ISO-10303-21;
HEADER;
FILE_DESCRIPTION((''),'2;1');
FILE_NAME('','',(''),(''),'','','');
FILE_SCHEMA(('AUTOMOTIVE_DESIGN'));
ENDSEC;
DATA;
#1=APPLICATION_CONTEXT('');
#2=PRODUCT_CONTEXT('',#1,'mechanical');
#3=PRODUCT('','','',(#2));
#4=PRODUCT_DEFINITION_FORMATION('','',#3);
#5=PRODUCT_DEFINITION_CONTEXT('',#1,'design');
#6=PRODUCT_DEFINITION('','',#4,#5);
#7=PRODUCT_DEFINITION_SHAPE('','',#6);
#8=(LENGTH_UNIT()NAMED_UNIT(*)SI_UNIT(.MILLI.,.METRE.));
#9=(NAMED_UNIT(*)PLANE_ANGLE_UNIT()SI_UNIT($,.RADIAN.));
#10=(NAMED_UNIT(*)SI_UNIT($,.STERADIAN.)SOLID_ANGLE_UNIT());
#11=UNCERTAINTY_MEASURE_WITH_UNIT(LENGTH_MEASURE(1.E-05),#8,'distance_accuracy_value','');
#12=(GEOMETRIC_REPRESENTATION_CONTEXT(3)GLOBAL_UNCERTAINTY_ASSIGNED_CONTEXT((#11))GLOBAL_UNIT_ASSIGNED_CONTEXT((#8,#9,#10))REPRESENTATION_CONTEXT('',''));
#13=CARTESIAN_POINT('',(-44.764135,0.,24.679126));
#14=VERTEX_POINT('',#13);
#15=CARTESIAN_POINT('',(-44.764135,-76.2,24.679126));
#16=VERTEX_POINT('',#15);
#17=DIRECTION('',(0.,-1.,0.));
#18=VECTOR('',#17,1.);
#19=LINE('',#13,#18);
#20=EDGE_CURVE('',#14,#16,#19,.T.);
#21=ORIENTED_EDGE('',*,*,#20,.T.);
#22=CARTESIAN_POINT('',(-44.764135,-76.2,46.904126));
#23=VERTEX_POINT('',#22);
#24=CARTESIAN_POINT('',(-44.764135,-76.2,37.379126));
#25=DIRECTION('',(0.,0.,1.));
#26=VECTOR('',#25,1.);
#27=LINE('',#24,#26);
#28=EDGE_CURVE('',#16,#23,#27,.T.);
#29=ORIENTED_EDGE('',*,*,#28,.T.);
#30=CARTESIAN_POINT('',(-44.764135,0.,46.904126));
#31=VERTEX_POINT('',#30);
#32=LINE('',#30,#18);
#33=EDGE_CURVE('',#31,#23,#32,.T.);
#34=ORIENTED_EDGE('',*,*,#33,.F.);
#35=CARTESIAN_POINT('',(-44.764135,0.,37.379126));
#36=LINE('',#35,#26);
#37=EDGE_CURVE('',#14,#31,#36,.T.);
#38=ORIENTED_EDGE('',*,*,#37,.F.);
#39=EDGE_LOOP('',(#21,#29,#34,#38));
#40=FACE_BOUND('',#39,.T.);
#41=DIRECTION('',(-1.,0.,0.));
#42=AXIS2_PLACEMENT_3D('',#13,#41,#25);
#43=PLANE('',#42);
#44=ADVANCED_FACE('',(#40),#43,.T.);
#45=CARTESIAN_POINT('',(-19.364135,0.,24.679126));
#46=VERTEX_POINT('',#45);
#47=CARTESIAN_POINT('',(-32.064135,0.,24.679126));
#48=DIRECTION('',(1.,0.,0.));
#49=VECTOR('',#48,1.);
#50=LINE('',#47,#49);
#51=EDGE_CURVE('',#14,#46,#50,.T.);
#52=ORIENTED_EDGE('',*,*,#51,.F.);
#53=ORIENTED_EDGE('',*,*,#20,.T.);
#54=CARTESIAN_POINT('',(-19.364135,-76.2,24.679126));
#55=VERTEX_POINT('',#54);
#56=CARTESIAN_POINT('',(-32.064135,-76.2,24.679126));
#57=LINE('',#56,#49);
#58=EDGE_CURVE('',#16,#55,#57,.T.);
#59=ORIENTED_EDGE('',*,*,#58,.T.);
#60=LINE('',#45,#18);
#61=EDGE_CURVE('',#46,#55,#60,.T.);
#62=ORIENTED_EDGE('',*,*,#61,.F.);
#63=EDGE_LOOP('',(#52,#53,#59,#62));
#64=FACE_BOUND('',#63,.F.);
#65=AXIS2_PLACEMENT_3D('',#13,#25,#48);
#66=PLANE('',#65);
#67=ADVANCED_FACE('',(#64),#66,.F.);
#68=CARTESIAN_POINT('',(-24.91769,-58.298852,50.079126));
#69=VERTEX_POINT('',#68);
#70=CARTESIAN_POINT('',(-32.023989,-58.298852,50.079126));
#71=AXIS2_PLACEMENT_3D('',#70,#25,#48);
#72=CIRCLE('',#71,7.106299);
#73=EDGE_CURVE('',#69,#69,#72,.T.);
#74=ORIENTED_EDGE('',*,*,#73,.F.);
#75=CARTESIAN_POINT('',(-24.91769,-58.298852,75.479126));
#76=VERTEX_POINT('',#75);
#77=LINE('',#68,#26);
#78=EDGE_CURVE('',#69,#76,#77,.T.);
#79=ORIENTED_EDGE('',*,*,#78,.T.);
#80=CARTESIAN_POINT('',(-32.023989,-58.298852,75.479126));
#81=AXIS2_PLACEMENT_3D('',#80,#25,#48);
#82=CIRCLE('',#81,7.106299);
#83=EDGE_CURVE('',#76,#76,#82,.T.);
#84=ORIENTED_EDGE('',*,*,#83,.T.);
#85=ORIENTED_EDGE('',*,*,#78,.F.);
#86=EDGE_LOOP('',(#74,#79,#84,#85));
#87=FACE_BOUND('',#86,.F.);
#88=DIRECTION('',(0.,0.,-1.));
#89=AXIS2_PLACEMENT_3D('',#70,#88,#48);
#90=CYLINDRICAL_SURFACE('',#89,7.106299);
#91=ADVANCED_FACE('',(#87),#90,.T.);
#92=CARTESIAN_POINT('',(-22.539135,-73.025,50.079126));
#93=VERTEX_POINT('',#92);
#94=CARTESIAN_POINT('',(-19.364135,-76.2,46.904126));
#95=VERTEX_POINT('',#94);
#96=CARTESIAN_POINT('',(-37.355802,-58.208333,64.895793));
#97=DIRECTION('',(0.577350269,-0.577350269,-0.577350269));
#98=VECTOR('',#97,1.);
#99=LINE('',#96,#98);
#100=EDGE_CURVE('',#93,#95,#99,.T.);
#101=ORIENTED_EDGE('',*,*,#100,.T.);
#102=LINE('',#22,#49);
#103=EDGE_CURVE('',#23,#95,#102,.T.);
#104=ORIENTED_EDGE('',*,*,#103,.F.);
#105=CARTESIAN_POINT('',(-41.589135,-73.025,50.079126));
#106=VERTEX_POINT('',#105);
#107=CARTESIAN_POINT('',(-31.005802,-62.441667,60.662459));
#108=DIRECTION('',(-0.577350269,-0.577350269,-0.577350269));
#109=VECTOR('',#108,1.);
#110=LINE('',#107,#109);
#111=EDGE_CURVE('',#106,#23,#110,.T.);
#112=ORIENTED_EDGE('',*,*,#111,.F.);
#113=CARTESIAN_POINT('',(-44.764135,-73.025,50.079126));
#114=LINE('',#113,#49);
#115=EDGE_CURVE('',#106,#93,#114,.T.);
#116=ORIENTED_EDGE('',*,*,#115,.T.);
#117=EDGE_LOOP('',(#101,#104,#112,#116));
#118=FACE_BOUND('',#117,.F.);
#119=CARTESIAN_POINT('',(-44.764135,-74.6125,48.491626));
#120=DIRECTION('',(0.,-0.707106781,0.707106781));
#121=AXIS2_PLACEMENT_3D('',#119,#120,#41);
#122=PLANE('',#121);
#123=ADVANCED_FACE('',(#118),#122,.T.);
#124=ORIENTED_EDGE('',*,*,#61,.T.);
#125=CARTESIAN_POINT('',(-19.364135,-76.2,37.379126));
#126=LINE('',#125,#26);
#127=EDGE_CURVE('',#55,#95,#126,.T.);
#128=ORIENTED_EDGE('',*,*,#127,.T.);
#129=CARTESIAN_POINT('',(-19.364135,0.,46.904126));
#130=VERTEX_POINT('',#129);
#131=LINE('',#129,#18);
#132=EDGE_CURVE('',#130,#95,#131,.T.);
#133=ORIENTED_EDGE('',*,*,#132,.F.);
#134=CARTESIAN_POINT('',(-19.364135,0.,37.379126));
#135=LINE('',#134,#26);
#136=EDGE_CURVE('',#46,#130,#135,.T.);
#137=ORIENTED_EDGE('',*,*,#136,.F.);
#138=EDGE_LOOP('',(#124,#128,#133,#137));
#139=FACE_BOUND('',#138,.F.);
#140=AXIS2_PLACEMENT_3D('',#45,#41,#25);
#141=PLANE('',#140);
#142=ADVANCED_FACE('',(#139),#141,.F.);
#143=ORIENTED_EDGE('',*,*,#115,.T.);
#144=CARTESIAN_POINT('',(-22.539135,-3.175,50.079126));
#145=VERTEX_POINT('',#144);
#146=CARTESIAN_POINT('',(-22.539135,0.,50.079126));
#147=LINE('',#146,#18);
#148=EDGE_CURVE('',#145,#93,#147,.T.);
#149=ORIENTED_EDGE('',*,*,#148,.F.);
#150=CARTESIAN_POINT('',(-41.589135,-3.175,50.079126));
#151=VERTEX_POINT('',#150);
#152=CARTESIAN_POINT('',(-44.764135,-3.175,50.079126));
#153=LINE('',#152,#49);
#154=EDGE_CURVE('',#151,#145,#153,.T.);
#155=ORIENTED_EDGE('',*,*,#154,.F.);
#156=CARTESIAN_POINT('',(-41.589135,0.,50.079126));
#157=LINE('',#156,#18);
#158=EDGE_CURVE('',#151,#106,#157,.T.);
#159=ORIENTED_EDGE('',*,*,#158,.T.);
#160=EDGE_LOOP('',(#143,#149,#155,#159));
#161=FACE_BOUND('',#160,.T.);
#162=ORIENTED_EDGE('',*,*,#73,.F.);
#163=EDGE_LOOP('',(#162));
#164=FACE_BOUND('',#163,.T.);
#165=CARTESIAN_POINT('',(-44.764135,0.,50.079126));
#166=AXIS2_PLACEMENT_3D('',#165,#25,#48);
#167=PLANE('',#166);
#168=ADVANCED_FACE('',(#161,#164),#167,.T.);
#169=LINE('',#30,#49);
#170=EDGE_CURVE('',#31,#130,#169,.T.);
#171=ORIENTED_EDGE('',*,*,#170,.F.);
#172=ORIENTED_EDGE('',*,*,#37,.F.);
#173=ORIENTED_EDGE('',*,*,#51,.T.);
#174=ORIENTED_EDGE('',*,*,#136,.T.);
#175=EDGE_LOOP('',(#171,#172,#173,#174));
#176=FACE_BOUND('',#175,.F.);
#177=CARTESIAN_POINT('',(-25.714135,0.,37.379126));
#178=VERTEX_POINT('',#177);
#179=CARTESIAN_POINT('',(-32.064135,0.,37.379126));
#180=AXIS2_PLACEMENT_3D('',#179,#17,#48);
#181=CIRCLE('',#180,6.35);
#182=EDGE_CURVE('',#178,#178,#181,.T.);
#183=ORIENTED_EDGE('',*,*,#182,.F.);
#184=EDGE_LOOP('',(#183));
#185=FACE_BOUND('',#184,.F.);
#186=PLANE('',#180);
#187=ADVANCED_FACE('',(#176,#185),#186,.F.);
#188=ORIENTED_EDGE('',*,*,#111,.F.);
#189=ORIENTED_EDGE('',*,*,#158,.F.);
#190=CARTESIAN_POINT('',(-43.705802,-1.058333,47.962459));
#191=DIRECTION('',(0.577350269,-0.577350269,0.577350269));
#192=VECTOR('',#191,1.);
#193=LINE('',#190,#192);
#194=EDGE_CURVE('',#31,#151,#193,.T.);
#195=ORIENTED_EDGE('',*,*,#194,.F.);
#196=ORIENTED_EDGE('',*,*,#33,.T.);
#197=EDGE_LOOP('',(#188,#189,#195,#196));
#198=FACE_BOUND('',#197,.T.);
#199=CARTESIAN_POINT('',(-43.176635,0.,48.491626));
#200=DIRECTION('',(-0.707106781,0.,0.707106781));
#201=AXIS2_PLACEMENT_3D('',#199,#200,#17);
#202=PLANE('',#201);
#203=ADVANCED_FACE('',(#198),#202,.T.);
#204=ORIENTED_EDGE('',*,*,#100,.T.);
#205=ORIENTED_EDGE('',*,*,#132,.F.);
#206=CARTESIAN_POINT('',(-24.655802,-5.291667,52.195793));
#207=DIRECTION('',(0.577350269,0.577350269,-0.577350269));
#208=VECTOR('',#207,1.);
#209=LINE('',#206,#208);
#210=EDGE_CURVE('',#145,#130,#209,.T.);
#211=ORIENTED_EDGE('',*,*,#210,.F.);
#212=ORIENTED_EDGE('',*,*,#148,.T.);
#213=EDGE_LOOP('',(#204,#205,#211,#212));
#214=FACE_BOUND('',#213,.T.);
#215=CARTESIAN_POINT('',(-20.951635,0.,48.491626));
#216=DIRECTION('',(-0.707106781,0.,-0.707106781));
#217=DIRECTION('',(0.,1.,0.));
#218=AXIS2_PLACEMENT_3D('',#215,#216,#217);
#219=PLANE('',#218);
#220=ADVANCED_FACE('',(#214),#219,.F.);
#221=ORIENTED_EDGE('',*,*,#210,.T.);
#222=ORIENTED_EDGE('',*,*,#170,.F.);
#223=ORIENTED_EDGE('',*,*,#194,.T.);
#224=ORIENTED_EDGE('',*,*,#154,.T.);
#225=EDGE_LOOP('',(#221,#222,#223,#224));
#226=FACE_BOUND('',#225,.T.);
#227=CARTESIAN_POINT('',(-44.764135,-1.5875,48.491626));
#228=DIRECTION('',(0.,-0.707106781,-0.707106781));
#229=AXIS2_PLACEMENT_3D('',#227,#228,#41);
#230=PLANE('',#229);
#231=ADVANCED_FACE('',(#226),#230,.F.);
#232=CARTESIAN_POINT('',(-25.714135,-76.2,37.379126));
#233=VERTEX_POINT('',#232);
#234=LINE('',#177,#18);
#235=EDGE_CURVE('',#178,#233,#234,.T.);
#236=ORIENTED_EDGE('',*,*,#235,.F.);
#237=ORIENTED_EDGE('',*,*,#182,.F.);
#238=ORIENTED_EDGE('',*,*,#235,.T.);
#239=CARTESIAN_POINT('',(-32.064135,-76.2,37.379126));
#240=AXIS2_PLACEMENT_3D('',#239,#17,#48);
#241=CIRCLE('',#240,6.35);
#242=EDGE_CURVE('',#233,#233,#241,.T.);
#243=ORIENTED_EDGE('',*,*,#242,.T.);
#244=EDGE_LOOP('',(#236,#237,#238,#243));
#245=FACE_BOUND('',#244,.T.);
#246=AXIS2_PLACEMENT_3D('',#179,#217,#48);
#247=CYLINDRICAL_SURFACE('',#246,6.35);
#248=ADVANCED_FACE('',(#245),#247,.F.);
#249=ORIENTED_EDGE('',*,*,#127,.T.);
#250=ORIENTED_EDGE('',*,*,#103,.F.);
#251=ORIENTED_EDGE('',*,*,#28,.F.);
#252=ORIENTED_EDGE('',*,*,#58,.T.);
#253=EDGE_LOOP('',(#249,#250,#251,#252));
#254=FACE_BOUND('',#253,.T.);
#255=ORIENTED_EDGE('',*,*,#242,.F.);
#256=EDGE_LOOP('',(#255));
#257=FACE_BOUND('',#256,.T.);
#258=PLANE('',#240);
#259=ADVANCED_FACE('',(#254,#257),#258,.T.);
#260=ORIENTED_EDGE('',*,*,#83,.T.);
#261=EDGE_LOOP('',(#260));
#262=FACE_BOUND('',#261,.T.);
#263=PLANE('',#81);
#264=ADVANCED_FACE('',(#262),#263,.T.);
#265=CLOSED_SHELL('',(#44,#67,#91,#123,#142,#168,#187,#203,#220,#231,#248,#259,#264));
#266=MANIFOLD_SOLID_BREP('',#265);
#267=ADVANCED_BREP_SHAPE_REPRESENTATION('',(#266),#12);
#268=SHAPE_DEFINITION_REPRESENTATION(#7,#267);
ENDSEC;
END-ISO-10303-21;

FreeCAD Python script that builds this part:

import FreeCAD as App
import Part
import Sketcher
from FreeCAD import Vector
Q = App.Units.Quantity


def edges_at(feature, points):
    """Names of the edges that pass closest to the given points."""
    edges = feature.Shape.Edges
    near = lambda p: min(range(len(edges)), key=lambda i: edges[i].distToShape(Part.Vertex(*p))[0])
    return sorted({f"Edge{near(p) + 1}" for p in points})

doc = App.newDocument("Part")
params = doc.addObject("Spreadsheet::Sheet", "Params")
for row, (alias, value) in enumerate([
    ("sketch1_diameter", "0.5 in"),
    ("sketch1_width", "1 in"),
    ("pad1_length", "3 in"),
    ("pad2_length", "1 in"),
    ("chamfer_size", "0.125 in"),
], start=1):
    params.set(f"A{row}", alias)
    params.set(f"B{row}", "=" + value)
    params.setAlias(f"B{row}", alias)

body = doc.addObject("PartDesign::Body", "Body")

sketch1 = body.newObject("Sketcher::SketchObject", "Sketch")
sketch1.AttachmentSupport = (doc.getObject("XZ_Plane"), [""])
sketch1.MapMode = "FlatFace"
sketch1.addGeometry(Part.LineSegment(Vector(-44.764135, 50.079126, 0), Vector(-44.764135, 24.679126, 0)), False)
sketch1.addGeometry(Part.LineSegment(Vector(-44.764135, 24.679126, 0), Vector(-19.364135, 24.679126, 0)), False)
sketch1.addGeometry(Part.LineSegment(Vector(-19.364135, 24.679126, 0), Vector(-19.364135, 50.079126, 0)), False)
sketch1.addGeometry(Part.LineSegment(Vector(-19.364135, 50.079126, 0), Vector(-44.764135, 50.079126, 0)), False)
sketch1.addGeometry(Part.Circle(Vector(-32.064135, 37.379126, 0), Vector(0, 0, 1), 6.35), False)
sketch1.addConstraint(Sketcher.Constraint("Coincident", 0, 2, 1, 1))
sketch1.addConstraint(Sketcher.Constraint("Coincident", 1, 2, 2, 1))
sketch1.addConstraint(Sketcher.Constraint("Coincident", 2, 2, 3, 1))
sketch1.addConstraint(Sketcher.Constraint("Coincident", 3, 2, 0, 1))
sketch1.addConstraint(Sketcher.Constraint("Vertical", 0))
sketch1.addConstraint(Sketcher.Constraint("Horizontal", 1))
sketch1.addConstraint(Sketcher.Constraint("Vertical", 2))
sketch1.addConstraint(Sketcher.Constraint("Horizontal", 3))
sketch1.addConstraint(Sketcher.Constraint("Equal", 3, 0))
sketch1.addConstraint(Sketcher.Constraint("Diameter", 4, Q("0.5 in")))
sketch1.addConstraint(Sketcher.Constraint("DistanceX", 1, 1, 1, 2, Q("1 in")))
sketch1.addConstraint(Sketcher.Constraint("DistanceX", 0, 2, 4, 3, Q("0.5 in")))
sketch1.addConstraint(Sketcher.Constraint("DistanceY", 0, 2, 4, 3, Q("0.5 in")))
sketch1.addConstraint(Sketcher.Constraint("DistanceX", 4, 3, -1, 1, Q("32.064135 mm")))
sketch1.addConstraint(Sketcher.Constraint("DistanceY", -1, 1, 4, 3, Q("37.379126 mm")))
sketch1.setExpression("Constraints[9]", "Params.sketch1_diameter")
sketch1.setExpression("Constraints[10]", "Params.sketch1_width")
pad1 = body.newObject("PartDesign::Pad", "Pad")
pad1.Profile = sketch1
pad1.setExpression("Length", "Params.pad1_length")

sketch2 = body.newObject("Sketcher::SketchObject", "Sketch001")
sketch2.AttachmentSupport = (doc.getObject("XY_Plane"), [""])
sketch2.MapMode = "FlatFace"
sketch2.AttachmentOffset = App.Placement(Vector(0, 0, 50.079126), App.Rotation())
sketch2.addGeometry(Part.Circle(Vector(-32.023989, -58.298852, 0), Vector(0, 0, 1), 7.106299), False)
sketch2.addConstraint(Sketcher.Constraint("Diameter", 0, Q("14.212598 mm")))
sketch2.addConstraint(Sketcher.Constraint("DistanceX", 0, 3, -1, 1, Q("32.023989 mm")))
sketch2.addConstraint(Sketcher.Constraint("DistanceY", 0, 3, -1, 1, Q("58.298852 mm")))
pad2 = body.newObject("PartDesign::Pad", "Pad001")
pad2.Profile = sketch2
pad2.setExpression("Length", "Params.pad2_length")
doc.recompute()

chamfer = body.newObject("PartDesign::Chamfer", "Chamfer")
chamfer.Base = (pad2, edges_at(pad2, [
    (-19.364, -38.1, 50.079),
    (-32.064, -76.2, 50.079),
    (-44.764, -38.1, 50.079),
    (-32.064, 0, 50.079),
]))
chamfer.setExpression("Size", "Params.chamfer_size")

doc.recompute()
